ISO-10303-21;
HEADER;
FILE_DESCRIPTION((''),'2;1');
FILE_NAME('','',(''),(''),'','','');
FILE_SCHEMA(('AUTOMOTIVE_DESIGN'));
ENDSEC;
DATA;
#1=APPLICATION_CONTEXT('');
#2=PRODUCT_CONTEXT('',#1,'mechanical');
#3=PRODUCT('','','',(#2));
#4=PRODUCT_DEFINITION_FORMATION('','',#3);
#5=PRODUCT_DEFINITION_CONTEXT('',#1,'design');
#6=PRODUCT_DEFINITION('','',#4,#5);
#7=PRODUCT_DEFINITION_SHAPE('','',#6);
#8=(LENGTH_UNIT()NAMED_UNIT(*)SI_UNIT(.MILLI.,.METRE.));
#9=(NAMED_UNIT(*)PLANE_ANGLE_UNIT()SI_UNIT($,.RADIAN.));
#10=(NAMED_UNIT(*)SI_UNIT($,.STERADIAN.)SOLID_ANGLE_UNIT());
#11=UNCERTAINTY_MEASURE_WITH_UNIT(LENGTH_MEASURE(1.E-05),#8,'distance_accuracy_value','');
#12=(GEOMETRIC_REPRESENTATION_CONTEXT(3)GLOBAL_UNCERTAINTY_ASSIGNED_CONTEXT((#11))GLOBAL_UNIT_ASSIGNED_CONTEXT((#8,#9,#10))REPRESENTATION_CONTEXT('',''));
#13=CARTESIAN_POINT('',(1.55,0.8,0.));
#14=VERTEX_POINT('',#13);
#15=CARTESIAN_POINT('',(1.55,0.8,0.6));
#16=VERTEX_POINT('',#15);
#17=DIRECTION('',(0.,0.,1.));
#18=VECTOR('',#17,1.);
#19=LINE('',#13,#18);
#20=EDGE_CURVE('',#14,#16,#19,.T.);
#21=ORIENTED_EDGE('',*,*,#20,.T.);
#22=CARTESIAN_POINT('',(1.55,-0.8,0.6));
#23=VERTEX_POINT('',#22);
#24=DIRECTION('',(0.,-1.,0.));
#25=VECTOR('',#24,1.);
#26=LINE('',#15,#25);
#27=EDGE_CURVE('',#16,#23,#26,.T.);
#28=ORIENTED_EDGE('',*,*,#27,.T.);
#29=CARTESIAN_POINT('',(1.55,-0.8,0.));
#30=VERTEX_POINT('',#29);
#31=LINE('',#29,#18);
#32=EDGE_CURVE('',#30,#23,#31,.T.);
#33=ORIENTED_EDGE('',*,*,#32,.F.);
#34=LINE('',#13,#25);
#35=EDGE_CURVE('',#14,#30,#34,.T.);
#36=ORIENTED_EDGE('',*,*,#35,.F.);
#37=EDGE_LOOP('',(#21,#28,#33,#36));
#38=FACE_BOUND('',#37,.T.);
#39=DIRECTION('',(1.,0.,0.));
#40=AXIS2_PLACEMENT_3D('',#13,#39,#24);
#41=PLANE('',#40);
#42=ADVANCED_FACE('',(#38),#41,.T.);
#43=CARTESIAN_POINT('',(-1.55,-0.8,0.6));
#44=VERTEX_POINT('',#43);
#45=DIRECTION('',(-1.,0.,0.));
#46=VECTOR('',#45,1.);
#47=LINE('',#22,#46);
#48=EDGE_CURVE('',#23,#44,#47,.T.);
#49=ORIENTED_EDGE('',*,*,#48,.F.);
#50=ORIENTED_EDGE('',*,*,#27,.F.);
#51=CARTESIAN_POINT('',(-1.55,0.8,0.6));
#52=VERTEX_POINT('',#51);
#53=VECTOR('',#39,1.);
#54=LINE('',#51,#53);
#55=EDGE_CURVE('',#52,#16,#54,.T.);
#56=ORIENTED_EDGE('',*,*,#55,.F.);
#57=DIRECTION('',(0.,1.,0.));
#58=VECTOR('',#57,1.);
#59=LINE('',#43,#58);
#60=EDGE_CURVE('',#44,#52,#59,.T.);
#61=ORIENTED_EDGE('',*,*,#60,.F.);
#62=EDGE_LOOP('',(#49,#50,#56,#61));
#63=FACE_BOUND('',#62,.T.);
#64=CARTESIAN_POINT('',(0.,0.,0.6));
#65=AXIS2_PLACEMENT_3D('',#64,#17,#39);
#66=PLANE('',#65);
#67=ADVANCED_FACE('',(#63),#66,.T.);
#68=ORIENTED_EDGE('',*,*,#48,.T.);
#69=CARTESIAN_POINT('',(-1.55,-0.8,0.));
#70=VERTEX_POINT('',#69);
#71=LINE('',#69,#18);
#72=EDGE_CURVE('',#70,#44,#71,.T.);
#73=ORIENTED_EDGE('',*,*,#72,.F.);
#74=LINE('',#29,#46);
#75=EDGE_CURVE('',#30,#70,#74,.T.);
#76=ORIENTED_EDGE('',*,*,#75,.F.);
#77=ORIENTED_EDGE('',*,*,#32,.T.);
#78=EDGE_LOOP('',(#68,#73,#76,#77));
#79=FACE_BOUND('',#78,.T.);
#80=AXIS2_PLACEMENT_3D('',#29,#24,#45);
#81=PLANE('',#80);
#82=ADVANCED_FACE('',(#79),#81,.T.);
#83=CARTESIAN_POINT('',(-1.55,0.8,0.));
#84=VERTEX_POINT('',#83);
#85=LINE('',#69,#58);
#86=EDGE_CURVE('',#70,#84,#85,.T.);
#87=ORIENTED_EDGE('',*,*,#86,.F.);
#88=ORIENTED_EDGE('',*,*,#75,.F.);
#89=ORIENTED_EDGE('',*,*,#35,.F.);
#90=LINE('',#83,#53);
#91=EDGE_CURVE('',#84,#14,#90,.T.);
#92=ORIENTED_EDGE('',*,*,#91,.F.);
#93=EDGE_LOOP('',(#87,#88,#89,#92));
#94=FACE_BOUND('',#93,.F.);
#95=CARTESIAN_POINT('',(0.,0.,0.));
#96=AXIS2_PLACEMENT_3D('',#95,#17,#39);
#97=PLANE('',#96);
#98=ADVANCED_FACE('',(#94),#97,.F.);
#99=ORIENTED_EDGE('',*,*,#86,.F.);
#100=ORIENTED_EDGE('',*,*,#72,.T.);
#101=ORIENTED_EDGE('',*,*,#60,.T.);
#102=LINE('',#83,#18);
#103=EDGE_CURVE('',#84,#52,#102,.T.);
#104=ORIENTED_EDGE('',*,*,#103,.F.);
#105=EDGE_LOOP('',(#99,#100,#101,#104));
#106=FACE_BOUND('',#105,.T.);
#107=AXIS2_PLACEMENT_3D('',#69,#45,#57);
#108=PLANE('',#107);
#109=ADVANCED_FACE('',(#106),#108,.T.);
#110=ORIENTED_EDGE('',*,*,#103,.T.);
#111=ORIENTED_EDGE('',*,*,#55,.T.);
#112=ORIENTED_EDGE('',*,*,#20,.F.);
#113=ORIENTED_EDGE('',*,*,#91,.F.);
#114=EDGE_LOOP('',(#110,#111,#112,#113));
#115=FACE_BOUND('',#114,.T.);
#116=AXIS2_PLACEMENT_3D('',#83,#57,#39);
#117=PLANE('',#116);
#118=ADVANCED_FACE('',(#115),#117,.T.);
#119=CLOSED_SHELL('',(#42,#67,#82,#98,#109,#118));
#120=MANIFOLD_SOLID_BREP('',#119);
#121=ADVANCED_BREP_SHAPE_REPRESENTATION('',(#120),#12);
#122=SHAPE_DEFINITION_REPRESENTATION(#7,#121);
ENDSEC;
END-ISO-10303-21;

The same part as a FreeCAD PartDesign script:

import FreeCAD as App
import Part
import Sketcher

doc = App.newDocument("Part")
body = doc.addObject("PartDesign::Body", "Body")

sketch1 = body.newObject("Sketcher::SketchObject", "Sketch")
sketch1.AttachmentSupport = (doc.getObject("XY_Plane"), [""])
sketch1.MapMode = "FlatFace"
sketch1.addGeometry([
    Part.LineSegment(App.Vector(1.6, -0.8, 0), App.Vector(1.6, 0.8, 0)),
    Part.LineSegment(App.Vector(1.6, 0.8, 0), App.Vector(-1.6, 0.8, 0)),
    Part.LineSegment(App.Vector(-1.6, 0.8, 0), App.Vector(-1.6, -0.8, 0)),
    Part.LineSegment(App.Vector(-1.6, -0.8, 0), App.Vector(1.6, -0.8, 0)),
], False)
sketch1.addConstraint([
    Sketcher.Constraint("Coincident", 0, 2, 1, 1),
    Sketcher.Constraint("Coincident", 1, 2, 2, 1),
    Sketcher.Constraint("Coincident", 2, 2, 3, 1),
    Sketcher.Constraint("Coincident", 3, 2, 0, 1),
    Sketcher.Constraint("Vertical", 0),
    Sketcher.Constraint("Horizontal", 1),
    Sketcher.Constraint("Vertical", 2),
    Sketcher.Constraint("Horizontal", 3),
    Sketcher.Constraint("Symmetric", 0, 2, 2, 2, -1, 1),
    Sketcher.Constraint("DistanceX", 1, 2, 1, 1, 3.1),
    Sketcher.Constraint("DistanceY", 0, 1, 0, 2, 1.6),
])
pad1 = body.newObject("PartDesign::Pad", "Pad")
pad1.Profile = sketch1
pad1.Length = 0.6

doc.recompute()
